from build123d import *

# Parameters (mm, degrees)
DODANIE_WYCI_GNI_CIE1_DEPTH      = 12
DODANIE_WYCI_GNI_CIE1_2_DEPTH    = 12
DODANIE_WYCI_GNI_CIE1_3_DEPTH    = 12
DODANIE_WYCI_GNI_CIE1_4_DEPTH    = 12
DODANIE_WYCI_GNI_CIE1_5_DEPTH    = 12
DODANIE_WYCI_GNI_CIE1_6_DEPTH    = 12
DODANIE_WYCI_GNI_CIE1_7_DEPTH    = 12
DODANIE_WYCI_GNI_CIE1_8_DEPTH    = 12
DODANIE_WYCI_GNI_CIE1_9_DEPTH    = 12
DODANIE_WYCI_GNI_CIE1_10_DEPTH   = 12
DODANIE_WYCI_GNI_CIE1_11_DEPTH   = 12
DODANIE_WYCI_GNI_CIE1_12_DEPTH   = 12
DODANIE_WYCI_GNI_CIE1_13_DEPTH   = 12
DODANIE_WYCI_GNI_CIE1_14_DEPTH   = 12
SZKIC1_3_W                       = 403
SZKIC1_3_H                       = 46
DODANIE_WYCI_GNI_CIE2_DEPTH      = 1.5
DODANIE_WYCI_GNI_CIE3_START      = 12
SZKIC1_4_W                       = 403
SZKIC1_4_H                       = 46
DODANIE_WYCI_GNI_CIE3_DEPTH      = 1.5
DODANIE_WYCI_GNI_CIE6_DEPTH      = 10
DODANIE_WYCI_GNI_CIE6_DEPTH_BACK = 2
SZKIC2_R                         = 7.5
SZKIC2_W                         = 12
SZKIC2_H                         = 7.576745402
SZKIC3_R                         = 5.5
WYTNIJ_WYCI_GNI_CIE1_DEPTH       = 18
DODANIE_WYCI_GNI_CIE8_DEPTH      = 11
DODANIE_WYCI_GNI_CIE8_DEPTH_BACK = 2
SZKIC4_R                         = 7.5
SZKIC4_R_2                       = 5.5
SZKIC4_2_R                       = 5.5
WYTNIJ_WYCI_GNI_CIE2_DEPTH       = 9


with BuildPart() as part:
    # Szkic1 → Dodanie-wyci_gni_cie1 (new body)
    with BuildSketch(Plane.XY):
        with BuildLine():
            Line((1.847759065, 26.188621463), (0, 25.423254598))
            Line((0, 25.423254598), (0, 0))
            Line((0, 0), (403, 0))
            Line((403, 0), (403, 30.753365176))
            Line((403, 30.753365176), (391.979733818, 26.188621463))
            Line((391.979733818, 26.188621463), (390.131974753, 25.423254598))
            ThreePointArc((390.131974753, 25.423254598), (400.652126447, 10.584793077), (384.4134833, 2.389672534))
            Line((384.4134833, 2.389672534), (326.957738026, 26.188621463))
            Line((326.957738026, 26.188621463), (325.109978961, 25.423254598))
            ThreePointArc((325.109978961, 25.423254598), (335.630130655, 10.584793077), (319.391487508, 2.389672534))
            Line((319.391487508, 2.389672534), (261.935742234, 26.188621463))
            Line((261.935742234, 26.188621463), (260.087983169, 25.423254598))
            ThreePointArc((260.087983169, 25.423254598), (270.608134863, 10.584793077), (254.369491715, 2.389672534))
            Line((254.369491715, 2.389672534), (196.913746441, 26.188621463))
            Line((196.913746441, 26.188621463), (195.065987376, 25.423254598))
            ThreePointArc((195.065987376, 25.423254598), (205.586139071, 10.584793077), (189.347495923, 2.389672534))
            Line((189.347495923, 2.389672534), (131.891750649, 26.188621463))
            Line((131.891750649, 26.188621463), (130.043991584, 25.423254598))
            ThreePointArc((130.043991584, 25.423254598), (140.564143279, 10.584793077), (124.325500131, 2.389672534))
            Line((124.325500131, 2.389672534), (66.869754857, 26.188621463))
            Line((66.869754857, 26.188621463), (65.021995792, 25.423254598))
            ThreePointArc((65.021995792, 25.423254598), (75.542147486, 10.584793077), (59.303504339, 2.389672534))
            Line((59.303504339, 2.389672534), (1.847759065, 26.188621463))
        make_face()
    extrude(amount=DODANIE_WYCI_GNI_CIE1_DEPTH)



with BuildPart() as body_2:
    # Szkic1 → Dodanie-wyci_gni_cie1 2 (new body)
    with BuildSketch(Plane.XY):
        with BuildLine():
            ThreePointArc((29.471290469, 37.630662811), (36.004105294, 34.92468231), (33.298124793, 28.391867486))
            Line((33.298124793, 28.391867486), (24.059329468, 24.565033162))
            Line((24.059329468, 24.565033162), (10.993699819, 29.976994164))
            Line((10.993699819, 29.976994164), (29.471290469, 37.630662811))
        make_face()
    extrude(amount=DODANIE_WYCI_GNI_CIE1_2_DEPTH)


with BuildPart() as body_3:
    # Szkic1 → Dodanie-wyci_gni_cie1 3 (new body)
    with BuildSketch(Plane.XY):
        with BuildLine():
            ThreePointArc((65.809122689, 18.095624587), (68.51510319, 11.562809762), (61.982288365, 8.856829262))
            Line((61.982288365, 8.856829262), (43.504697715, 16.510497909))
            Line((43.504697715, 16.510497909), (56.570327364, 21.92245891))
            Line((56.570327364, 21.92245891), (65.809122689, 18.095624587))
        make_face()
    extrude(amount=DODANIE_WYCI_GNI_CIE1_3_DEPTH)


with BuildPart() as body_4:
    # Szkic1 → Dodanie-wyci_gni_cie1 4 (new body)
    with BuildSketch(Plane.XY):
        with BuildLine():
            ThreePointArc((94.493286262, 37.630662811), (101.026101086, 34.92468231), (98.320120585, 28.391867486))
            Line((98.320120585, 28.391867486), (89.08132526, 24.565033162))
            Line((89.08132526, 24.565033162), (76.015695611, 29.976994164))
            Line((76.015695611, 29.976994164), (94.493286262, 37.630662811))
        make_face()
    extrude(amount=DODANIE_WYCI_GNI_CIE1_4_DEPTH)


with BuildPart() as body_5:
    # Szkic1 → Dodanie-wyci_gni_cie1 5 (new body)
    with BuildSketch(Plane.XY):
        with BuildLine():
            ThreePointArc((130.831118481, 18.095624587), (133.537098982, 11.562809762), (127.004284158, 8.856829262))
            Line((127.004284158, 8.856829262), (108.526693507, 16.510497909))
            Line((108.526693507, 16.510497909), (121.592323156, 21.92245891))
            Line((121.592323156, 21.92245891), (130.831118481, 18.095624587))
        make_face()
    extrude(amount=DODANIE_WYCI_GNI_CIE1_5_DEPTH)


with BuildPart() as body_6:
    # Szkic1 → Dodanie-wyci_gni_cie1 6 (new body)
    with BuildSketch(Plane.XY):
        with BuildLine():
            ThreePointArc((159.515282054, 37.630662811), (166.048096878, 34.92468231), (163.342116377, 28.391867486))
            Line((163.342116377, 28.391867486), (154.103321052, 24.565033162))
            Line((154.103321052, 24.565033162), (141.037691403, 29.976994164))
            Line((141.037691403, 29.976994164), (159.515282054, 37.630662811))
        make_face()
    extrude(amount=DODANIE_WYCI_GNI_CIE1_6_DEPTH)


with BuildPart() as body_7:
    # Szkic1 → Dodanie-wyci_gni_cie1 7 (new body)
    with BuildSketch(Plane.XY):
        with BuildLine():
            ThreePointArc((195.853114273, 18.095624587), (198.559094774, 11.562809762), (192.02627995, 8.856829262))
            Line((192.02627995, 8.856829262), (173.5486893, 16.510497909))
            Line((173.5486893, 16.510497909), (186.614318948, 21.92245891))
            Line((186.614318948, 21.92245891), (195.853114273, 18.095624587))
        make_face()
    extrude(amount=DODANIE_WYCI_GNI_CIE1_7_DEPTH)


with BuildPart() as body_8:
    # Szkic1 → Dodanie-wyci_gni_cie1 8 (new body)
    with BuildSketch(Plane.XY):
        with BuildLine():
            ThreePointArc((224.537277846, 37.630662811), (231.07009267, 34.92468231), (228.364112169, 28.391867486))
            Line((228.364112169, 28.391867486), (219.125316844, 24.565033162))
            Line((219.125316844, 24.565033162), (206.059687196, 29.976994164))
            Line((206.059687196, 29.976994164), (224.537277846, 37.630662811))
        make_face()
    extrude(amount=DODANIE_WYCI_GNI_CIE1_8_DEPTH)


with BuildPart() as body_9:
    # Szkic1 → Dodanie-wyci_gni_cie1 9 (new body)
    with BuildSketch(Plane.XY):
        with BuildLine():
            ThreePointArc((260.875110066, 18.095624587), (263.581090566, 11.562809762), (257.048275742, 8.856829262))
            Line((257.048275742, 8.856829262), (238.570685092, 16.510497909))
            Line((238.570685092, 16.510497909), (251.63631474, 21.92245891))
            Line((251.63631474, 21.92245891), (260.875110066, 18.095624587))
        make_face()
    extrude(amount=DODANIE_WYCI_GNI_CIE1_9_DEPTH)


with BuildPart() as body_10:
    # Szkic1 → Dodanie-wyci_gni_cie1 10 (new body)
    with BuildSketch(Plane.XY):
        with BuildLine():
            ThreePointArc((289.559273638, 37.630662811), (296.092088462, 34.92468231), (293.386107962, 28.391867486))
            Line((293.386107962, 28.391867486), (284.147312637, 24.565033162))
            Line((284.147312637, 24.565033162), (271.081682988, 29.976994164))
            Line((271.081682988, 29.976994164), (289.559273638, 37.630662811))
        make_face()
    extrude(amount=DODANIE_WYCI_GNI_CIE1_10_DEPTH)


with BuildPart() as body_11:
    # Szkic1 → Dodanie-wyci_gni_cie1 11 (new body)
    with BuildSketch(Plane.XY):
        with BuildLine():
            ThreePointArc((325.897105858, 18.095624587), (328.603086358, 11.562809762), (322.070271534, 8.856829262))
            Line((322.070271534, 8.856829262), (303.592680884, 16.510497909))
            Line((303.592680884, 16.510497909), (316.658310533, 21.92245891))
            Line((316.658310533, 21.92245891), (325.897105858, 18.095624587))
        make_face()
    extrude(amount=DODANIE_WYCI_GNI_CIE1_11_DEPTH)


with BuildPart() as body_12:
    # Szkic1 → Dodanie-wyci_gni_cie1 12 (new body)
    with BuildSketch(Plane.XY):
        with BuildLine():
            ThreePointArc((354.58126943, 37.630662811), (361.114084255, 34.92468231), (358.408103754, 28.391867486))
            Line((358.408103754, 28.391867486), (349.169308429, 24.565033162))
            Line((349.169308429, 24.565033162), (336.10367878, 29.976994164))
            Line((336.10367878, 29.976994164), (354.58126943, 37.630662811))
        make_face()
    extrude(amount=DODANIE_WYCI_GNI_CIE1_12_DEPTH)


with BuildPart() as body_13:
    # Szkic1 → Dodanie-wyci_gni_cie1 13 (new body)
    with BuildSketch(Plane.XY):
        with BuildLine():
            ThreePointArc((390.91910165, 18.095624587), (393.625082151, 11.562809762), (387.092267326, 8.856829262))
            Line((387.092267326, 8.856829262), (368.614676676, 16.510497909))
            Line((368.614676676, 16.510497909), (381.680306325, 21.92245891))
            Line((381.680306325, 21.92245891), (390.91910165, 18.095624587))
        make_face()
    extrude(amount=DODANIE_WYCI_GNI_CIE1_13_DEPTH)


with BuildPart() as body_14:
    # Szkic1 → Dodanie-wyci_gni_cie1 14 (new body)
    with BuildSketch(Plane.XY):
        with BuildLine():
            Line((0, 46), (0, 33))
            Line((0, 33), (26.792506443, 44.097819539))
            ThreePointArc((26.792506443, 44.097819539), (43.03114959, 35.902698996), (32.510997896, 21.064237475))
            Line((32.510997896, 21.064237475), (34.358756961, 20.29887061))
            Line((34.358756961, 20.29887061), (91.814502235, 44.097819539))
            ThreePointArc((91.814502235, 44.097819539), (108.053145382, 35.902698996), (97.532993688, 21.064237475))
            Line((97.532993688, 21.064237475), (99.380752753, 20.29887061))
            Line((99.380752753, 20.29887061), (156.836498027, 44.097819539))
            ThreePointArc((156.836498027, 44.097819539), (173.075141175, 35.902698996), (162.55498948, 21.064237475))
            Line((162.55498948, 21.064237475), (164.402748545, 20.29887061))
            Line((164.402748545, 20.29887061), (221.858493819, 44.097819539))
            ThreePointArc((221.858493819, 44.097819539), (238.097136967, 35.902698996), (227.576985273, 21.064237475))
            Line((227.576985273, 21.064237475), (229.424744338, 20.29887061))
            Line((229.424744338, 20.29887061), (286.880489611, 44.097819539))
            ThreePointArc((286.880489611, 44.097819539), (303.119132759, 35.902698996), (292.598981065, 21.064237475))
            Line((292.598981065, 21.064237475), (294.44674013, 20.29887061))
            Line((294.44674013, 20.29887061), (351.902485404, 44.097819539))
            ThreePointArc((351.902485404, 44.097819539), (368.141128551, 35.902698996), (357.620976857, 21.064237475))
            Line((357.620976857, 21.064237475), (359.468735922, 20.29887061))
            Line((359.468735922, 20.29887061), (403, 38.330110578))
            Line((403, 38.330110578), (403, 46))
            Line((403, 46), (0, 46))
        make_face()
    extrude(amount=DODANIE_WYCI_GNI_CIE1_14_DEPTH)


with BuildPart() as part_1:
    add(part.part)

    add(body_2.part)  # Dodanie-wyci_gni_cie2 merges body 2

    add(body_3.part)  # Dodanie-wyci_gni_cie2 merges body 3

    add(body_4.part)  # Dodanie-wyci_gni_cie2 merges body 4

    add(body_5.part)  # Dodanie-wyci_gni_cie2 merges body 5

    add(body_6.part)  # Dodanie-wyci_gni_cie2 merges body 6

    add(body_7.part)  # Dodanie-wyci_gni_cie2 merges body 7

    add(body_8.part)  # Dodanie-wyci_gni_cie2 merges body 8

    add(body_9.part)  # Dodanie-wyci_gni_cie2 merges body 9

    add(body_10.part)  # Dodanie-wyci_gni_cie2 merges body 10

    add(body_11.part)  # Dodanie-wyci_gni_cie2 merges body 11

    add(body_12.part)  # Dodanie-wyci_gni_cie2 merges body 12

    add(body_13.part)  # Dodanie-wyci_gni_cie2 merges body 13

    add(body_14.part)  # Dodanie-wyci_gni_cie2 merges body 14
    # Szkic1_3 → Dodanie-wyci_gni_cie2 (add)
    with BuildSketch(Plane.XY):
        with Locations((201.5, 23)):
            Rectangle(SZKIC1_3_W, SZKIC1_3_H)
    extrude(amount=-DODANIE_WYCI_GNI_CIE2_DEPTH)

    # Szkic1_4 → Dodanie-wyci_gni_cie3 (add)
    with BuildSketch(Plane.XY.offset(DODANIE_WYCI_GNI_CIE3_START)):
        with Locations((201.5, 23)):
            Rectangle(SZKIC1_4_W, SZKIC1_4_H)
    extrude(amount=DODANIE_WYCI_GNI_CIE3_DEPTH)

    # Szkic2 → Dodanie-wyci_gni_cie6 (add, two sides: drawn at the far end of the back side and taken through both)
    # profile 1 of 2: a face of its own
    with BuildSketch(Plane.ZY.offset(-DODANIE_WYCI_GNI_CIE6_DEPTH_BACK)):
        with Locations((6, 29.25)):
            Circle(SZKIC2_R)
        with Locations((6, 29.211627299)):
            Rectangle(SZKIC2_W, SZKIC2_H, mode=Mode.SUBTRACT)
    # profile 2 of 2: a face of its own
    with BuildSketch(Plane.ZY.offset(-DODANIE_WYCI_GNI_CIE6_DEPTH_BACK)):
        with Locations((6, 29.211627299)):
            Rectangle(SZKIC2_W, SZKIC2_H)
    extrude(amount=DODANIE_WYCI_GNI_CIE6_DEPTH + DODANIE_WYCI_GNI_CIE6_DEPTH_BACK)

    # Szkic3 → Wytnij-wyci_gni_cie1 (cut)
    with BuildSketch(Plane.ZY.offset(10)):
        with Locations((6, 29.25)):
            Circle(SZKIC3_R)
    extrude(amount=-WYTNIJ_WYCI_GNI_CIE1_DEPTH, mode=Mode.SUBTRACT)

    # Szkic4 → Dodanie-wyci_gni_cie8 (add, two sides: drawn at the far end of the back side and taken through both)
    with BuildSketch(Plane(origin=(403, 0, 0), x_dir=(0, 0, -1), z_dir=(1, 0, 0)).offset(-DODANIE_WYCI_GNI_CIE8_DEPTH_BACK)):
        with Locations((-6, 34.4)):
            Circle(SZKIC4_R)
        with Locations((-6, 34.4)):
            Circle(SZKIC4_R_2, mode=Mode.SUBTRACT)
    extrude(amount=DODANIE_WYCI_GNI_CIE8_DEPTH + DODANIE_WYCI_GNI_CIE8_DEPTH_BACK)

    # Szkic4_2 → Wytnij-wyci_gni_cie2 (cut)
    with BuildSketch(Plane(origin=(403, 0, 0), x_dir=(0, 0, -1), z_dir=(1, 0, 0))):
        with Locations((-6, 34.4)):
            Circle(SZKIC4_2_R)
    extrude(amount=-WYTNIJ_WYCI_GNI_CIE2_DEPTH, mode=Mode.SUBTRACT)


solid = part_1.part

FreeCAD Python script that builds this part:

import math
import FreeCAD as App
import Part
import Sketcher

V = App.Vector
Q = App.Units.Quantity


def add_polygon(sketch, points):
    """Adds a closed chain of lines whose ends are joined by coincident constraints."""
    first, n = sketch.GeometryCount, len(points)
    for a, b in zip(points, points[1:] + points[:1]):
        sketch.addGeometry(Part.LineSegment(App.Vector(*a, 0), App.Vector(*b, 0)), False)
    for i in range(n):
        sketch.addConstraint(Sketcher.Constraint("Coincident", first + i, 2, first + (i + 1) % n, 1))

doc = App.newDocument("Part")
body = doc.addObject("PartDesign::Body", "Body")

# Sketch on XY plane
sketch1 = doc.addObject("Sketcher::SketchObject", "Sketch")
body.addObject(sketch1)
sketch1.AttachmentSupport = (doc.XY_Plane, [""])
sketch1.MapMode = "FlatFace"
sketch1.addGeometry(Part.LineSegment(V(1.8, 26.2, 0), V(0, 25.4, 0)), False)
sketch1.addGeometry(Part.LineSegment(V(0, 25.4, 0), V(0, 0, 0)), False)
sketch1.addGeometry(Part.LineSegment(V(0, 0, 0), V(403, 0, 0)), False)
sketch1.addGeometry(Part.LineSegment(V(403, 0, 0), V(403, 30.8, 0)), False)
sketch1.addGeometry(Part.LineSegment(V(403, 30.8, 0), V(392, 26.2, 0)), False)
sketch1.addGeometry(Part.LineSegment(V(392, 26.2, 0), V(390.1, 25.4, 0)), False)
sketch1.addGeometry(Part.ArcOfCircle(Part.Circle(V(389, 13.5, 0), V(0, 0, 1), 12), math.radians(-112), math.radians(85)), False)
sketch1.addGeometry(Part.LineSegment(V(384.4, 2.4, 0), V(327, 26.2, 0)), False)
sketch1.addGeometry(Part.LineSegment(V(327, 26.2, 0), V(325.1, 25.4, 0)), False)
sketch1.addGeometry(Part.ArcOfCircle(Part.Circle(V(324, 13.5, 0), V(0, 0, 1), 12), math.radians(-112), math.radians(85)), False)
sketch1.addGeometry(Part.LineSegment(V(319.4, 2.4, 0), V(261.9, 26.2, 0)), False)
sketch1.addGeometry(Part.LineSegment(V(261.9, 26.2, 0), V(260.1, 25.4, 0)), False)
sketch1.addGeometry(Part.ArcOfCircle(Part.Circle(V(259, 13.5, 0), V(0, 0, 1), 12), math.radians(-113), math.radians(85)), False)
sketch1.addGeometry(Part.LineSegment(V(254.4, 2.4, 0), V(196.9, 26.2, 0)), False)
sketch1.addGeometry(Part.LineSegment(V(196.9, 26.2, 0), V(195.1, 25.4, 0)), False)
sketch1.addGeometry(Part.ArcOfCircle(Part.Circle(V(193.9, 13.5, 0), V(0, 0, 1), 12), math.radians(-113), math.radians(85)), False)
sketch1.addGeometry(Part.LineSegment(V(189.3, 2.4, 0), V(131.9, 26.2, 0)), False)
sketch1.addGeometry(Part.LineSegment(V(131.9, 26.2, 0), V(130, 25.4, 0)), False)
sketch1.addGeometry(Part.ArcOfCircle(Part.Circle(V(128.9, 13.5, 0), V(0, 0, 1), 12), math.radians(-113), math.radians(85)), False)
sketch1.addGeometry(Part.LineSegment(V(124.3, 2.4, 0), V(66.9, 26.2, 0)), False)
sketch1.addGeometry(Part.LineSegment(V(66.9, 26.2, 0), V(65, 25.4, 0)), False)
sketch1.addGeometry(Part.ArcOfCircle(Part.Circle(V(63.9, 13.5, 0), V(0, 0, 1), 12), math.radians(-112), math.radians(85)), False)
sketch1.addGeometry(Part.LineSegment(V(59.3, 2.4, 0), V(1.8, 26.2, 0)), False)
sketch1.addConstraint(Sketcher.Constraint("Coincident", 0, 2, 1, 1))
sketch1.addConstraint(Sketcher.Constraint("Coincident", 1, 2, 2, 1))
sketch1.addConstraint(Sketcher.Constraint("Coincident", 2, 2, 3, 1))
sketch1.addConstraint(Sketcher.Constraint("Coincident", 3, 2, 4, 1))
sketch1.addConstraint(Sketcher.Constraint("Coincident", 4, 2, 5, 1))
sketch1.addConstraint(Sketcher.Constraint("Coincident", 5, 2, 6, 2))
sketch1.addConstraint(Sketcher.Constraint("Tangent", 6, 1, 7, 1))
sketch1.addConstraint(Sketcher.Constraint("Coincident", 7, 2, 8, 1))
sketch1.addConstraint(Sketcher.Constraint("Coincident", 8, 2, 9, 2))
sketch1.addConstraint(Sketcher.Constraint("Tangent", 9, 1, 10, 1))
sketch1.addConstraint(Sketcher.Constraint("Coincident", 10, 2, 11, 1))
sketch1.addConstraint(Sketcher.Constraint("Coincident", 11, 2, 12, 2))
sketch1.addConstraint(Sketcher.Constraint("Tangent", 12, 1, 13, 1))
sketch1.addConstraint(Sketcher.Constraint("Coincident", 13, 2, 14, 1))
sketch1.addConstraint(Sketcher.Constraint("Coincident", 14, 2, 15, 2))
sketch1.addConstraint(Sketcher.Constraint("Tangent", 15, 1, 16, 1))
sketch1.addConstraint(Sketcher.Constraint("Coincident", 16, 2, 17, 1))
sketch1.addConstraint(Sketcher.Constraint("Coincident", 17, 2, 18, 2))
sketch1.addConstraint(Sketcher.Constraint("Tangent", 18, 1, 19, 1))
sketch1.addConstraint(Sketcher.Constraint("Coincident", 19, 2, 20, 1))
sketch1.addConstraint(Sketcher.Constraint("Coincident", 20, 2, 21, 2))
sketch1.addConstraint(Sketcher.Constraint("Tangent", 21, 1, 22, 1))
sketch1.addConstraint(Sketcher.Constraint("Coincident", 22, 2, 0, 1))
sketch1.addConstraint(Sketcher.Constraint("Vertical", 1))
sketch1.addConstraint(Sketcher.Constraint("Horizontal", 2))
sketch1.addConstraint(Sketcher.Constraint("Vertical", 3))
sketch1.addConstraint(Sketcher.Constraint("Coincident", 1, 2, -1, 1))
sketch1.addConstraint(Sketcher.Constraint("Equal", 6, 9))
sketch1.addConstraint(Sketcher.Constraint("Equal", 9, 12))
sketch1.addConstraint(Sketcher.Constraint("Equal", 12, 15))
sketch1.addConstraint(Sketcher.Constraint("Equal", 15, 18))
sketch1.addConstraint(Sketcher.Constraint("Equal", 18, 21))
sketch1.addConstraint(Sketcher.Constraint("Parallel", 0, 4))
sketch1.addConstraint(Sketcher.Constraint("Parallel", 4, 5))
sketch1.addConstraint(Sketcher.Constraint("Parallel", 5, 8))
sketch1.addConstraint(Sketcher.Constraint("Parallel", 7, 10))
sketch1.addConstraint(Sketcher.Constraint("Parallel", 8, 11))
sketch1.addConstraint(Sketcher.Constraint("Parallel", 10, 13))
sketch1.addConstraint(Sketcher.Constraint("Parallel", 11, 14))
sketch1.addConstraint(Sketcher.Constraint("Parallel", 13, 16))
sketch1.addConstraint(Sketcher.Constraint("Parallel", 14, 17))
sketch1.addConstraint(Sketcher.Constraint("Parallel", 16, 19))
sketch1.addConstraint(Sketcher.Constraint("Parallel", 17, 20))
sketch1.addConstraint(Sketcher.Constraint("Parallel", 19, 22))
sketch1.addConstraint(Sketcher.Constraint("Horizontal", 6, 3, 9, 3))
sketch1.addConstraint(Sketcher.Constraint("Horizontal", 9, 3, 12, 3))
sketch1.addConstraint(Sketcher.Constraint("Horizontal", 12, 3, 15, 3))
sketch1.addConstraint(Sketcher.Constraint("Horizontal", 15, 3, 18, 3))
sketch1.addConstraint(Sketcher.Constraint("Horizontal", 18, 3, 21, 3))
sketch1.addConstraint(Sketcher.Constraint("Horizontal", 0, 2, 5, 2))
sketch1.addConstraint(Sketcher.Constraint("Horizontal", 4, 2, 7, 2))
sketch1.addConstraint(Sketcher.Constraint("Horizontal", 5, 2, 8, 2))
sketch1.addConstraint(Sketcher.Constraint("Horizontal", 7, 2, 10, 2))
sketch1.addConstraint(Sketcher.Constraint("Horizontal", 8, 2, 11, 2))
sketch1.addConstraint(Sketcher.Constraint("Horizontal", 10, 2, 13, 2))
sketch1.addConstraint(Sketcher.Constraint("Horizontal", 11, 2, 14, 2))
sketch1.addConstraint(Sketcher.Constraint("Horizontal", 13, 2, 16, 2))
sketch1.addConstraint(Sketcher.Constraint("Horizontal", 14, 2, 17, 2))
sketch1.addConstraint(Sketcher.Constraint("Horizontal", 16, 2, 19, 2))
sketch1.addConstraint(Sketcher.Constraint("Horizontal", 17, 2, 20, 2))
sketch1.addConstraint(Sketcher.Constraint("Horizontal", 19, 2, 22, 2))
sketch1.addConstraint(Sketcher.Constraint("Radius", 6, 12.0))
sketch1.addConstraint(Sketcher.Constraint("DistanceX", 2, 1, 2, 2, 403.0))
sketch1.addConstraint(Sketcher.Constraint("Distance", 0, 2.0))
sketch1.addConstraint(Sketcher.Constraint("Angle", 0, Q("-157.5 deg")))
sketch1.addConstraint(Sketcher.Constraint("Angle", 7, Q("157.5 deg")))
sketch1.addConstraint(Sketcher.Constraint("DistanceX", -1, 1, 18, 3, 128.917701))
sketch1.addConstraint(Sketcher.Constraint("DistanceY", 1, 2, 1, 1, 25.423255))
pad1 = doc.addObject("PartDesign::Pad", "Pad")
body.addObject(pad1)
pad1.Profile = sketch1
pad1.Length = 12
body2 = doc.addObject("PartDesign::Body", "Body001")

# Sketch on XY plane
sketch2 = doc.addObject("Sketcher::SketchObject", "Sketch001")
body2.addObject(sketch2)
sketch2.AttachmentSupport = (doc.getObject("XY_Plane001"), [""])
sketch2.MapMode = "FlatFace"
sketch2.addGeometry(Part.ArcOfCircle(Part.Circle(V(31, 33, 0), V(0, 0, 1), 5), math.radians(-68), math.radians(113)), False)
sketch2.addGeometry(Part.LineSegment(V(29, 38, 0), V(11, 30, 0)), False)
sketch2.addGeometry(Part.LineSegment(V(11, 30, 0), V(24, 25, 0)), False)
sketch2.addGeometry(Part.LineSegment(V(24, 25, 0), V(33, 28, 0)), False)
sketch2.addConstraint(Sketcher.Constraint("Tangent", 0, 2, 1, 1))
sketch2.addConstraint(Sketcher.Constraint("Coincident", 1, 2, 2, 1))
sketch2.addConstraint(Sketcher.Constraint("Coincident", 2, 2, 3, 1))
sketch2.addConstraint(Sketcher.Constraint("Tangent", 3, 2, 0, 1))
sketch2.addConstraint(Sketcher.Constraint("Parallel", 1, 3))
sketch2.addConstraint(Sketcher.Constraint("Radius", 0, 5.0))
sketch2.addConstraint(Sketcher.Constraint("Distance", 1, 20.0))
sketch2.addConstraint(Sketcher.Constraint("Distance", 3, 10.0))
sketch2.addConstraint(Sketcher.Constraint("Angle", 1, Q("-157.5 deg")))
sketch2.addConstraint(Sketcher.Constraint("DistanceX", -1, 1, 1, 2, 10.9937))
sketch2.addConstraint(Sketcher.Constraint("DistanceY", -1, 1, 0, 3, 33.011265))
pad2 = doc.addObject("PartDesign::Pad", "Pad001")
body2.addObject(pad2)
pad2.Profile = sketch2
pad2.Length = 12
body3 = doc.addObject("PartDesign::Body", "Body002")

# Sketch on XY plane
sketch3 = doc.addObject("Sketcher::SketchObject", "Sketch002")
body3.addObject(sketch3)
sketch3.AttachmentSupport = (doc.getObject("XY_Plane002"), [""])
sketch3.MapMode = "FlatFace"
sketch3.addGeometry(Part.ArcOfCircle(Part.Circle(V(64, 13, 0), V(0, 0, 1), 5), math.radians(-113), math.radians(68)), False)
sketch3.addGeometry(Part.LineSegment(V(66, 18, 0), V(57, 22, 0)), False)
sketch3.addGeometry(Part.LineSegment(V(57, 22, 0), V(44, 17, 0)), False)
sketch3.addGeometry(Part.LineSegment(V(44, 17, 0), V(62, 9, 0)), False)
sketch3.addConstraint(Sketcher.Constraint("Tangent", 0, 2, 1, 1))
sketch3.addConstraint(Sketcher.Constraint("Coincident", 1, 2, 2, 1))
sketch3.addConstraint(Sketcher.Constraint("Coincident", 2, 2, 3, 1))
sketch3.addConstraint(Sketcher.Constraint("Tangent", 3, 2, 0, 1))
sketch3.addConstraint(Sketcher.Constraint("Parallel", 1, 3))
sketch3.addConstraint(Sketcher.Constraint("Radius", 0, 5.0))
sketch3.addConstraint(Sketcher.Constraint("Distance", 1, 10.0))
sketch3.addConstraint(Sketcher.Constraint("Distance", 3, 20.0))
sketch3.addConstraint(Sketcher.Constraint("Angle", 1, Q("157.5 deg")))
sketch3.addConstraint(Sketcher.Constraint("DistanceY", -1, 1, 1, 2, 21.922459))
sketch3.addConstraint(Sketcher.Constraint("DistanceX", -1, 1, 3, 2, 61.982288))
pad3 = doc.addObject("PartDesign::Pad", "Pad002")
body3.addObject(pad3)
pad3.Profile = sketch3
pad3.Length = 12
body4 = doc.addObject("PartDesign::Body", "Body003")

# Sketch on XY plane
sketch4 = doc.addObject("Sketcher::SketchObject", "Sketch003")
body4.addObject(sketch4)
sketch4.AttachmentSupport = (doc.getObject("XY_Plane003"), [""])
sketch4.MapMode = "FlatFace"
sketch4.addGeometry(Part.ArcOfCircle(Part.Circle(V(96, 33, 0), V(0, 0, 1), 5), math.radians(-68), math.radians(113)), False)
sketch4.addGeometry(Part.LineSegment(V(94, 38, 0), V(76, 30, 0)), False)
sketch4.addGeometry(Part.LineSegment(V(76, 30, 0), V(89, 25, 0)), False)
sketch4.addGeometry(Part.LineSegment(V(89, 25, 0), V(98, 28, 0)), False)
sketch4.addConstraint(Sketcher.Constraint("Tangent", 0, 2, 1, 1))
sketch4.addConstraint(Sketcher.Constraint("Coincident", 1, 2, 2, 1))
sketch4.addConstraint(Sketcher.Constraint("Coincident", 2, 2, 3, 1))
sketch4.addConstraint(Sketcher.Constraint("Tangent", 3, 2, 0, 1))
sketch4.addConstraint(Sketcher.Constraint("Parallel", 1, 3))
sketch4.addConstraint(Sketcher.Constraint("Radius", 0, 5.0))
sketch4.addConstraint(Sketcher.Constraint("Distance", 1, 20.0))
sketch4.addConstraint(Sketcher.Constraint("Distance", 3, 10.0))
sketch4.addConstraint(Sketcher.Constraint("Angle", 1, Q("-157.5 deg")))
sketch4.addConstraint(Sketcher.Constraint("DistanceX", -1, 1, 3, 2, 98.320121))
sketch4.addConstraint(Sketcher.Constraint("DistanceY", -1, 1, 0, 3, 33.011265))
pad4 = doc.addObject("PartDesign::Pad", "Pad003")
body4.addObject(pad4)
pad4.Profile = sketch4
pad4.Length = 12
body5 = doc.addObject("PartDesign::Body", "Body004")

# Sketch on XY plane
sketch5 = doc.addObject("Sketcher::SketchObject", "Sketch004")
body5.addObject(sketch5)
sketch5.AttachmentSupport = (doc.getObject("XY_Plane004"), [""])
sketch5.MapMode = "FlatFace"
sketch5.addGeometry(Part.ArcOfCircle(Part.Circle(V(129, 13, 0), V(0, 0, 1), 5), math.radians(-113), math.radians(68)), False)
sketch5.addGeometry(Part.LineSegment(V(131, 18, 0), V(122, 22, 0)), False)
sketch5.addGeometry(Part.LineSegment(V(122, 22, 0), V(109, 17, 0)), False)
sketch5.addGeometry(Part.LineSegment(V(109, 17, 0), V(127, 9, 0)), False)
sketch5.addConstraint(Sketcher.Constraint("Tangent", 0, 2, 1, 1))
sketch5.addConstraint(Sketcher.Constraint("Coincident", 1, 2, 2, 1))
sketch5.addConstraint(Sketcher.Constraint("Coincident", 2, 2, 3, 1))
sketch5.addConstraint(Sketcher.Constraint("Tangent", 3, 2, 0, 1))
sketch5.addConstraint(Sketcher.Constraint("Parallel", 1, 3))
sketch5.addConstraint(Sketcher.Constraint("Radius", 0, 5.0))
sketch5.addConstraint(Sketcher.Constraint("Distance", 1, 10.0))
sketch5.addConstraint(Sketcher.Constraint("Distance", 3, 20.0))
sketch5.addConstraint(Sketcher.Constraint("Angle", 1, Q("157.5 deg")))
sketch5.addConstraint(Sketcher.Constraint("DistanceX", -1, 1, 0, 3, 128.917701))
sketch5.addConstraint(Sketcher.Constraint("DistanceY", -1, 1, 1, 2, 21.922459))
pad5 = doc.addObject("PartDesign::Pad", "Pad004")
body5.addObject(pad5)
pad5.Profile = sketch5
pad5.Length = 12
body6 = doc.addObject("PartDesign::Body", "Body005")

# Sketch on XY plane
sketch6 = doc.addObject("Sketcher::SketchObject", "Sketch005")
body6.addObject(sketch6)
sketch6.AttachmentSupport = (doc.getObject("XY_Plane005"), [""])
sketch6.MapMode = "FlatFace"
sketch6.addGeometry(Part.ArcOfCircle(Part.Circle(V(161, 33, 0), V(0, 0, 1), 5), math.radians(-68), math.radians(112)), False)
sketch6.addGeometry(Part.LineSegment(V(160, 38, 0), V(141, 30, 0)), False)
sketch6.addGeometry(Part.LineSegment(V(141, 30, 0), V(154, 25, 0)), False)
sketch6.addGeometry(Part.LineSegment(V(154, 25, 0), V(163, 28, 0)), False)
sketch6.addConstraint(Sketcher.Constraint("Tangent", 0, 2, 1, 1))
sketch6.addConstraint(Sketcher.Constraint("Coincident", 1, 2, 2, 1))
sketch6.addConstraint(Sketcher.Constraint("Coincident", 2, 2, 3, 1))
sketch6.addConstraint(Sketcher.Constraint("Tangent", 3, 2, 0, 1))
sketch6.addConstraint(Sketcher.Constraint("Parallel", 1, 3))
sketch6.addConstraint(Sketcher.Constraint("Radius", 0, 5.0))
sketch6.addConstraint(Sketcher.Constraint("Distance", 1, 20.0))
sketch6.addConstraint(Sketcher.Constraint("Distance", 3, 10.0))
sketch6.addConstraint(Sketcher.Constraint("Angle", 1, Q("-157.5 deg")))
sketch6.addConstraint(Sketcher.Constraint("DistanceX", -1, 1, 0, 3, 161.428699))
sketch6.addConstraint(Sketcher.Constraint("DistanceY", -1, 1, 0, 3, 33.011265))
pad6 = doc.addObject("PartDesign::Pad", "Pad005")
body6.addObject(pad6)
pad6.Profile = sketch6
pad6.Length = 12
body7 = doc.addObject("PartDesign::Body", "Body006")

# Sketch on XY plane
sketch7 = doc.addObject("Sketcher::SketchObject", "Sketch006")
body7.addObject(sketch7)
sketch7.AttachmentSupport = (doc.getObject("XY_Plane006"), [""])
sketch7.MapMode = "FlatFace"
sketch7.addGeometry(Part.ArcOfCircle(Part.Circle(V(194, 13, 0), V(0, 0, 1), 5), math.radians(-113), math.radians(68)), False)
sketch7.addGeometry(Part.LineSegment(V(196, 18, 0), V(187, 22, 0)), False)
sketch7.addGeometry(Part.LineSegment(V(187, 22, 0), V(174, 17, 0)), False)
sketch7.addGeometry(Part.LineSegment(V(174, 17, 0), V(192, 9, 0)), False)
sketch7.addConstraint(Sketcher.Constraint("Tangent", 0, 2, 1, 1))
sketch7.addConstraint(Sketcher.Constraint("Coincident", 1, 2, 2, 1))
sketch7.addConstraint(Sketcher.Constraint("Coincident", 2, 2, 3, 1))
sketch7.addConstraint(Sketcher.Constraint("Tangent", 3, 2, 0, 1))
sketch7.addConstraint(Sketcher.Constraint("Parallel", 1, 3))
sketch7.addConstraint(Sketcher.Constraint("Radius", 0, 5.0))
sketch7.addConstraint(Sketcher.Constraint("Distance", 1, 10.0))
sketch7.addConstraint(Sketcher.Constraint("Distance", 3, 20.0))
sketch7.addConstraint(Sketcher.Constraint("Angle", 1, Q("157.5 deg")))
sketch7.addConstraint(Sketcher.Constraint("DistanceX", -1, 1, 1, 2, 186.614319))
sketch7.addConstraint(Sketcher.Constraint("DistanceY", -1, 1, 1, 2, 21.922459))
pad7 = doc.addObject("PartDesign::Pad", "Pad006")
body7.addObject(pad7)
pad7.Profile = sketch7
pad7.Length = 12
body8 = doc.addObject("PartDesign::Body", "Body007")

# Sketch on XY plane
sketch8 = doc.addObject("Sketcher::SketchObject", "Sketch007")
body8.addObject(sketch8)
sketch8.AttachmentSupport = (doc.getObject("XY_Plane007"), [""])
sketch8.MapMode = "FlatFace"
sketch8.addGeometry(Part.ArcOfCircle(Part.Circle(V(226, 33, 0), V(0, 0, 1), 5), math.radians(-68), math.radians(113)), False)
sketch8.addGeometry(Part.LineSegment(V(225, 38, 0), V(206, 30, 0)), False)
sketch8.addGeometry(Part.LineSegment(V(206, 30, 0), V(219, 25, 0)), False)
sketch8.addGeometry(Part.LineSegment(V(219, 25, 0), V(228, 28, 0)), False)
sketch8.addConstraint(Sketcher.Constraint("Tangent", 0, 2, 1, 1))
sketch8.addConstraint(Sketcher.Constraint("Coincident", 1, 2, 2, 1))
sketch8.addConstraint(Sketcher.Constraint("Coincident", 2, 2, 3, 1))
sketch8.addConstraint(Sketcher.Constraint("Tangent", 3, 2, 0, 1))
sketch8.addConstraint(Sketcher.Constraint("Parallel", 1, 3))
sketch8.addConstraint(Sketcher.Constraint("Radius", 0, 5.0))
sketch8.addConstraint(Sketcher.Constraint("Distance", 1, 20.0))
sketch8.addConstraint(Sketcher.Constraint("Distance", 3, 10.0))
sketch8.addConstraint(Sketcher.Constraint("Angle", 1, Q("-157.5 deg")))
sketch8.addConstraint(Sketcher.Constraint("DistanceX", -1, 1, 0, 3, 226.450695))
sketch8.addConstraint(Sketcher.Constraint("DistanceY", -1, 1, 0, 3, 33.011265))
pad8 = doc.addObject("PartDesign::Pad", "Pad007")
body8.addObject(pad8)
pad8.Profile = sketch8
pad8.Length = 12
body9 = doc.addObject("PartDesign::Body", "Body008")

# Sketch on XY plane
sketch9 = doc.addObject("Sketcher::SketchObject", "Sketch008")
body9.addObject(sketch9)
sketch9.AttachmentSupport = (doc.getObject("XY_Plane008"), [""])
sketch9.MapMode = "FlatFace"
sketch9.addGeometry(Part.ArcOfCircle(Part.Circle(V(259, 13, 0), V(0, 0, 1), 5), math.radians(-112), math.radians(67)), False)
sketch9.addGeometry(Part.LineSegment(V(261, 18, 0), V(252, 22, 0)), False)
sketch9.addGeometry(Part.LineSegment(V(252, 22, 0), V(239, 17, 0)), False)
sketch9.addGeometry(Part.LineSegment(V(239, 17, 0), V(257, 9, 0)), False)
sketch9.addConstraint(Sketcher.Constraint("Tangent", 0, 2, 1, 1))
sketch9.addConstraint(Sketcher.Constraint("Coincident", 1, 2, 2, 1))
sketch9.addConstraint(Sketcher.Constraint("Coincident", 2, 2, 3, 1))
sketch9.addConstraint(Sketcher.Constraint("Tangent", 3, 2, 0, 1))
sketch9.addConstraint(Sketcher.Constraint("Parallel", 1, 3))
sketch9.addConstraint(Sketcher.Constraint("Radius", 0, 5.0))
sketch9.addConstraint(Sketcher.Constraint("Distance", 1, 10.0))
sketch9.addConstraint(Sketcher.Constraint("Distance", 3, 20.0))
sketch9.addConstraint(Sketcher.Constraint("Angle", 1, Q("157.5 deg")))
sketch9.addConstraint(Sketcher.Constraint("DistanceX", -1, 1, 0, 2, 260.87511))
sketch9.addConstraint(Sketcher.Constraint("DistanceY", -1, 1, 1, 2, 21.922459))
pad9 = doc.addObject("PartDesign::Pad", "Pad008")
body9.addObject(pad9)
pad9.Profile = sketch9
pad9.Length = 12
body10 = doc.addObject("PartDesign::Body", "Body009")

# Sketch on XY plane
sketch10 = doc.addObject("Sketcher::SketchObject", "Sketch009")
body10.addObject(sketch10)
sketch10.AttachmentSupport = (doc.getObject("XY_Plane009"), [""])
sketch10.MapMode = "FlatFace"
sketch10.addGeometry(Part.ArcOfCircle(Part.Circle(V(291, 33, 0), V(0, 0, 1), 5), math.radians(-67), math.radians(112)), False)
sketch10.addGeometry(Part.LineSegment(V(290, 38, 0), V(271, 30, 0)), False)
sketch10.addGeometry(Part.LineSegment(V(271, 30, 0), V(284, 25, 0)), False)
sketch10.addGeometry(Part.LineSegment(V(284, 25, 0), V(293, 28, 0)), False)
sketch10.addConstraint(Sketcher.Constraint("Tangent", 0, 2, 1, 1))
sketch10.addConstraint(Sketcher.Constraint("Coincident", 1, 2, 2, 1))
sketch10.addConstraint(Sketcher.Constraint("Coincident", 2, 2, 3, 1))
sketch10.addConstraint(Sketcher.Constraint("Tangent", 3, 2, 0, 1))
sketch10.addConstraint(Sketcher.Constraint("Parallel", 1, 3))
sketch10.addConstraint(Sketcher.Constraint("Radius", 0, 5.0))
sketch10.addConstraint(Sketcher.Constraint("Distance", 1, 20.0))
sketch10.addConstraint(Sketcher.Constraint("Distance", 3, 10.0))
sketch10.addConstraint(Sketcher.Constraint("Angle", 1, Q("-157.5 deg")))
sketch10.addConstraint(Sketcher.Constraint("DistanceX", -1, 1, 0, 3, 291.472691))
sketch10.addConstraint(Sketcher.Constraint("DistanceY", -1, 1, 0, 3, 33.011265))
pad10 = doc.addObject("PartDesign::Pad", "Pad009")
body10.addObject(pad10)
pad10.Profile = sketch10
pad10.Length = 12
body11 = doc.addObject("PartDesign::Body", "Body010")

# Sketch on XY plane
sketch11 = doc.addObject("Sketcher::SketchObject", "Sketch010")
body11.addObject(sketch11)
sketch11.AttachmentSupport = (doc.getObject("XY_Plane010"), [""])
sketch11.MapMode = "FlatFace"
sketch11.addGeometry(Part.ArcOfCircle(Part.Circle(V(324, 13, 0), V(0, 0, 1), 5), math.radians(-112), math.radians(67)), False)
sketch11.addGeometry(Part.LineSegment(V(326, 18, 0), V(317, 22, 0)), False)
sketch11.addGeometry(Part.LineSegment(V(317, 22, 0), V(304, 17, 0)), False)
sketch11.addGeometry(Part.LineSegment(V(304, 17, 0), V(322, 9, 0)), False)
sketch11.addConstraint(Sketcher.Constraint("Tangent", 0, 2, 1, 1))
sketch11.addConstraint(Sketcher.Constraint("Coincident", 1, 2, 2, 1))
sketch11.addConstraint(Sketcher.Constraint("Coincident", 2, 2, 3, 1))
sketch11.addConstraint(Sketcher.Constraint("Tangent", 3, 2, 0, 1))
sketch11.addConstraint(Sketcher.Constraint("Parallel", 1, 3))
sketch11.addConstraint(Sketcher.Constraint("Radius", 0, 5.0))
sketch11.addConstraint(Sketcher.Constraint("Distance", 1, 10.0))
sketch11.addConstraint(Sketcher.Constraint("Distance", 3, 20.0))
sketch11.addConstraint(Sketcher.Constraint("Angle", 1, Q("157.5 deg")))
sketch11.addConstraint(Sketcher.Constraint("DistanceX", -1, 1, 0, 3, 323.983689))
sketch11.addConstraint(Sketcher.Constraint("DistanceY", -1, 1, 1, 2, 21.922459))
pad11 = doc.addObject("PartDesign::Pad", "Pad010")
body11.addObject(pad11)
pad11.Profile = sketch11
pad11.Length = 12
body12 = doc.addObject("PartDesign::Body", "Body011")

# Sketch on XY plane
sketch12 = doc.addObject("Sketcher::SketchObject", "Sketch011")
body12.addObject(sketch12)
sketch12.AttachmentSupport = (doc.getObject("XY_Plane011"), [""])
sketch12.MapMode = "FlatFace"
sketch12.addGeometry(Part.ArcOfCircle(Part.Circle(V(356, 33, 0), V(0, 0, 1), 5), math.radians(-68), math.radians(113)), False)
sketch12.addGeometry(Part.LineSegment(V(355, 38, 0), V(336, 30, 0)), False)
sketch12.addGeometry(Part.LineSegment(V(336, 30, 0), V(349, 25, 0)), False)
sketch12.addGeometry(Part.LineSegment(V(349, 25, 0), V(358, 28, 0)), False)
sketch12.addConstraint(Sketcher.Constraint("Tangent", 0, 2, 1, 1))
sketch12.addConstraint(Sketcher.Constraint("Coincident", 1, 2, 2, 1))
sketch12.addConstraint(Sketcher.Constraint("Coincident", 2, 2, 3, 1))
sketch12.addConstraint(Sketcher.Constraint("Tangent", 3, 2, 0, 1))
sketch12.addConstraint(Sketcher.Constraint("Parallel", 1, 3))
sketch12.addConstraint(Sketcher.Constraint("Radius", 0, 5.0))
sketch12.addConstraint(Sketcher.Constraint("Distance", 1, 20.0))
sketch12.addConstraint(Sketcher.Constraint("Distance", 3, 10.0))
sketch12.addConstraint(Sketcher.Constraint("Angle", 1, Q("-157.5 deg")))
sketch12.addConstraint(Sketcher.Constraint("DistanceX", -1, 1, 0, 2, 354.581269))
sketch12.addConstraint(Sketcher.Constraint("DistanceY", -1, 1, 0, 3, 33.011265))
pad12 = doc.addObject("PartDesign::Pad", "Pad011")
body12.addObject(pad12)
pad12.Profile = sketch12
pad12.Length = 12
body13 = doc.addObject("PartDesign::Body", "Body012")

# Sketch on XY plane
sketch13 = doc.addObject("Sketcher::SketchObject", "Sketch012")
body13.addObject(sketch13)
sketch13.AttachmentSupport = (doc.getObject("XY_Plane012"), [""])
sketch13.MapMode = "FlatFace"
sketch13.addGeometry(Part.ArcOfCircle(Part.Circle(V(389, 13, 0), V(0, 0, 1), 5), math.radians(-113), math.radians(68)), False)
sketch13.addGeometry(Part.LineSegment(V(391, 18, 0), V(382, 22, 0)), False)
sketch13.addGeometry(Part.LineSegment(V(382, 22, 0), V(369, 17, 0)), False)
sketch13.addGeometry(Part.LineSegment(V(369, 17, 0), V(387, 9, 0)), False)
sketch13.addConstraint(Sketcher.Constraint("Tangent", 0, 2, 1, 1))
sketch13.addConstraint(Sketcher.Constraint("Coincident", 1, 2, 2, 1))
sketch13.addConstraint(Sketcher.Constraint("Coincident", 2, 2, 3, 1))
sketch13.addConstraint(Sketcher.Constraint("Tangent", 3, 2, 0, 1))
sketch13.addConstraint(Sketcher.Constraint("Parallel", 1, 3))
sketch13.addConstraint(Sketcher.Constraint("Radius", 0, 5.0))
sketch13.addConstraint(Sketcher.Constraint("Distance", 1, 10.0))
sketch13.addConstraint(Sketcher.Constraint("Distance", 3, 20.0))
sketch13.addConstraint(Sketcher.Constraint("Angle", 1, Q("157.5 deg")))
sketch13.addConstraint(Sketcher.Constraint("DistanceX", -1, 1, 0, 2, 390.919102))
sketch13.addConstraint(Sketcher.Constraint("DistanceY", -1, 1, 1, 2, 21.922459))
pad13 = doc.addObject("PartDesign::Pad", "Pad012")
body13.addObject(pad13)
pad13.Profile = sketch13
pad13.Length = 12
body14 = doc.addObject("PartDesign::Body", "Body013")

# Sketch on XY plane
sketch14 = doc.addObject("Sketcher::SketchObject", "Sketch013")
body14.addObject(sketch14)
sketch14.AttachmentSupport = (doc.getObject("XY_Plane013"), [""])
sketch14.MapMode = "FlatFace"
sketch14.addGeometry(Part.LineSegment(V(0, 46, 0), V(0, 33, 0)), False)
sketch14.addGeometry(Part.LineSegment(V(0, 33, 0), V(26.8, 44.1, 0)), False)
sketch14.addGeometry(Part.ArcOfCircle(Part.Circle(V(31.4, 33, 0), V(0, 0, 1), 12), math.radians(-85), math.radians(112)), False)
sketch14.addGeometry(Part.LineSegment(V(32.5, 21.1, 0), V(34.4, 20.3, 0)), False)
sketch14.addGeometry(Part.LineSegment(V(34.4, 20.3, 0), V(91.8, 44.1, 0)), False)
sketch14.addGeometry(Part.ArcOfCircle(Part.Circle(V(96.4, 33, 0), V(0, 0, 1), 12), math.radians(-85), math.radians(112)), False)
sketch14.addGeometry(Part.LineSegment(V(97.5, 21.1, 0), V(99.4, 20.3, 0)), False)
sketch14.addGeometry(Part.LineSegment(V(99.4, 20.3, 0), V(156.8, 44.1, 0)), False)
sketch14.addGeometry(Part.ArcOfCircle(Part.Circle(V(161.4, 33, 0), V(0, 0, 1), 12), math.radians(-85), math.radians(113)), False)
sketch14.addGeometry(Part.LineSegment(V(162.6, 21.1, 0), V(164.4, 20.3, 0)), False)
sketch14.addGeometry(Part.LineSegment(V(164.4, 20.3, 0), V(221.9, 44.1, 0)), False)
sketch14.addGeometry(Part.ArcOfCircle(Part.Circle(V(226.5, 33, 0), V(0, 0, 1), 12), math.radians(-85), math.radians(113)), False)
sketch14.addGeometry(Part.LineSegment(V(227.6, 21.1, 0), V(229.4, 20.3, 0)), False)
sketch14.addGeometry(Part.LineSegment(V(229.4, 20.3, 0), V(286.9, 44.1, 0)), False)
sketch14.addGeometry(Part.ArcOfCircle(Part.Circle(V(291.5, 33, 0), V(0, 0, 1), 12), math.radians(-85), math.radians(113)), False)
sketch14.addGeometry(Part.LineSegment(V(292.6, 21.1, 0), V(294.4, 20.3, 0)), False)
sketch14.addGeometry(Part.LineSegment(V(294.4, 20.3, 0), V(351.9, 44.1, 0)), False)
sketch14.addGeometry(Part.ArcOfCircle(Part.Circle(V(356.5, 33, 0), V(0, 0, 1), 12), math.radians(-85), math.radians(112)), False)
sketch14.addGeometry(Part.LineSegment(V(357.6, 21.1, 0), V(359.5, 20.3, 0)), False)
sketch14.addGeometry(Part.LineSegment(V(359.5, 20.3, 0), V(403, 38.3, 0)), False)
sketch14.addGeometry(Part.LineSegment(V(403, 38.3, 0), V(403, 46, 0)), False)
sketch14.addGeometry(Part.LineSegment(V(403, 46, 0), V(0, 46, 0)), False)
sketch14.addConstraint(Sketcher.Constraint("Coincident", 0, 2, 1, 1))
sketch14.addConstraint(Sketcher.Constraint("Tangent", 1, 2, 2, 2))
sketch14.addConstraint(Sketcher.Constraint("Coincident", 2, 1, 3, 1))
sketch14.addConstraint(Sketcher.Constraint("Coincident", 3, 2, 4, 1))
sketch14.addConstraint(Sketcher.Constraint("Tangent", 4, 2, 5, 2))
sketch14.addConstraint(Sketcher.Constraint("Coincident", 5, 1, 6, 1))
sketch14.addConstraint(Sketcher.Constraint("Coincident", 6, 2, 7, 1))
sketch14.addConstraint(Sketcher.Constraint("Tangent", 7, 2, 8, 2))
sketch14.addConstraint(Sketcher.Constraint("Coincident", 8, 1, 9, 1))
sketch14.addConstraint(Sketcher.Constraint("Coincident", 9, 2, 10, 1))
sketch14.addConstraint(Sketcher.Constraint("Tangent", 10, 2, 11, 2))
sketch14.addConstraint(Sketcher.Constraint("Coincident", 11, 1, 12, 1))
sketch14.addConstraint(Sketcher.Constraint("Coincident", 12, 2, 13, 1))
sketch14.addConstraint(Sketcher.Constraint("Tangent", 13, 2, 14, 2))
sketch14.addConstraint(Sketcher.Constraint("Coincident", 14, 1, 15, 1))
sketch14.addConstraint(Sketcher.Constraint("Coincident", 15, 2, 16, 1))
sketch14.addConstraint(Sketcher.Constraint("Tangent", 16, 2, 17, 2))
sketch14.addConstraint(Sketcher.Constraint("Coincident", 17, 1, 18, 1))
sketch14.addConstraint(Sketcher.Constraint("Coincident", 18, 2, 19, 1))
sketch14.addConstraint(Sketcher.Constraint("Coincident", 19, 2, 20, 1))
sketch14.addConstraint(Sketcher.Constraint("Coincident", 20, 2, 21, 1))
sketch14.addConstraint(Sketcher.Constraint("Coincident", 21, 2, 0, 1))
sketch14.addConstraint(Sketcher.Constraint("Vertical", 0))
sketch14.addConstraint(Sketcher.Constraint("Vertical", 20))
sketch14.addConstraint(Sketcher.Constraint("Horizontal", 21))
sketch14.addConstraint(Sketcher.Constraint("Equal", 2, 5))
sketch14.addConstraint(Sketcher.Constraint("Equal", 5, 8))
sketch14.addConstraint(Sketcher.Constraint("Equal", 8, 11))
sketch14.addConstraint(Sketcher.Constraint("Equal", 11, 14))
sketch14.addConstraint(Sketcher.Constraint("Equal", 14, 17))
sketch14.addConstraint(Sketcher.Constraint("PointOnObject", 0, 2, -2))
sketch14.addConstraint(Sketcher.Constraint("Parallel", 1, 4))
sketch14.addConstraint(Sketcher.Constraint("Parallel", 3, 6))
sketch14.addConstraint(Sketcher.Constraint("Parallel", 4, 7))
sketch14.addConstraint(Sketcher.Constraint("Parallel", 6, 9))
sketch14.addConstraint(Sketcher.Constraint("Parallel", 7, 10))
sketch14.addConstraint(Sketcher.Constraint("Parallel", 9, 12))
sketch14.addConstraint(Sketcher.Constraint("Parallel", 10, 13))
sketch14.addConstraint(Sketcher.Constraint("Parallel", 12, 15))
sketch14.addConstraint(Sketcher.Constraint("Parallel", 13, 16))
sketch14.addConstraint(Sketcher.Constraint("Parallel", 15, 18))
sketch14.addConstraint(Sketcher.Constraint("Parallel", 16, 19))
sketch14.addConstraint(Sketcher.Constraint("Horizontal", 2, 3, 5, 3))
sketch14.addConstraint(Sketcher.Constraint("Horizontal", 5, 3, 8, 3))
sketch14.addConstraint(Sketcher.Constraint("Horizontal", 8, 3, 11, 3))
sketch14.addConstraint(Sketcher.Constraint("Horizontal", 11, 3, 14, 3))
sketch14.addConstraint(Sketcher.Constraint("Horizontal", 14, 3, 17, 3))
sketch14.addConstraint(Sketcher.Constraint("Horizontal", 2, 1, 5, 1))
sketch14.addConstraint(Sketcher.Constraint("Horizontal", 3, 2, 6, 2))
sketch14.addConstraint(Sketcher.Constraint("Horizontal", 5, 1, 8, 1))
sketch14.addConstraint(Sketcher.Constraint("Horizontal", 6, 2, 9, 2))
sketch14.addConstraint(Sketcher.Constraint("Horizontal", 8, 1, 11, 1))
sketch14.addConstraint(Sketcher.Constraint("Horizontal", 9, 2, 12, 2))
sketch14.addConstraint(Sketcher.Constraint("Horizontal", 11, 1, 14, 1))
sketch14.addConstraint(Sketcher.Constraint("Horizontal", 12, 2, 15, 2))
sketch14.addConstraint(Sketcher.Constraint("Horizontal", 14, 1, 17, 1))
sketch14.addConstraint(Sketcher.Constraint("Horizontal", 15, 2, 18, 2))
sketch14.addConstraint(Sketcher.Constraint("Radius", 2, 12.0))
sketch14.addConstraint(Sketcher.Constraint("DistanceX", 21, 2, 21, 1, 403.0))
sketch14.addConstraint(Sketcher.Constraint("DistanceY", 0, 2, 0, 1, 13.0))
sketch14.addConstraint(Sketcher.Constraint("Distance", 1, 29.0))
sketch14.addConstraint(Sketcher.Constraint("Distance", 3, 2.0))
sketch14.addConstraint(Sketcher.Constraint("DistanceY", -1, 1, 0, 2, 33.0))
sketch14.addConstraint(Sketcher.Constraint("Angle", 1, Q("22.5 deg")))
sketch14.addConstraint(Sketcher.Constraint("Angle", 3, Q("-22.5 deg")))
sketch14.addConstraint(Sketcher.Constraint("Distance", 19, 47.117901))
pad14 = doc.addObject("PartDesign::Pad", "Pad013")
body14.addObject(pad14)
pad14.Profile = sketch14
pad14.Length = 12
body.AllowCompound = True
doc.recompute()

boolean = doc.addObject("PartDesign::Boolean", "Boolean")
body.addObject(boolean)
boolean.Type = "Fuse"
boolean.addObjects([body2])
doc.recompute()

boolean2 = doc.addObject("PartDesign::Boolean", "Boolean001")
body.addObject(boolean2)
boolean2.Type = "Fuse"
boolean2.addObjects([body3])
doc.recompute()

boolean3 = doc.addObject("PartDesign::Boolean", "Boolean002")
body.addObject(boolean3)
boolean3.Type = "Fuse"
boolean3.addObjects([body4])
doc.recompute()

boolean4 = doc.addObject("PartDesign::Boolean", "Boolean003")
body.addObject(boolean4)
boolean4.Type = "Fuse"
boolean4.addObjects([body5])
doc.recompute()

boolean5 = doc.addObject("PartDesign::Boolean", "Boolean004")
body.addObject(boolean5)
boolean5.Type = "Fuse"
boolean5.addObjects([body6])
doc.recompute()

boolean6 = doc.addObject("PartDesign::Boolean", "Boolean005")
body.addObject(boolean6)
boolean6.Type = "Fuse"
boolean6.addObjects([body7])
doc.recompute()

boolean7 = doc.addObject("PartDesign::Boolean", "Boolean006")
body.addObject(boolean7)
boolean7.Type = "Fuse"
boolean7.addObjects([body8])
doc.recompute()

boolean8 = doc.addObject("PartDesign::Boolean", "Boolean007")
body.addObject(boolean8)
boolean8.Type = "Fuse"
boolean8.addObjects([body9])
doc.recompute()

boolean9 = doc.addObject("PartDesign::Boolean", "Boolean008")
body.addObject(boolean9)
boolean9.Type = "Fuse"
boolean9.addObjects([body10])
doc.recompute()

boolean10 = doc.addObject("PartDesign::Boolean", "Boolean009")
body.addObject(boolean10)
boolean10.Type = "Fuse"
boolean10.addObjects([body11])
doc.recompute()

boolean11 = doc.addObject("PartDesign::Boolean", "Boolean010")
body.addObject(boolean11)
boolean11.Type = "Fuse"
boolean11.addObjects([body12])
doc.recompute()

boolean12 = doc.addObject("PartDesign::Boolean", "Boolean011")
body.addObject(boolean12)
boolean12.Type = "Fuse"
boolean12.addObjects([body13])
doc.recompute()

boolean13 = doc.addObject("PartDesign::Boolean", "Boolean012")
body.addObject(boolean13)
boolean13.Type = "Fuse"
boolean13.addObjects([body14])

# Sketch on XY plane
sketch15 = doc.addObject("Sketcher::SketchObject", "Sketch014")
body.addObject(sketch15)
sketch15.AttachmentSupport = (doc.XY_Plane, [""])
sketch15.MapMode = "FlatFace"
add_polygon(sketch15, [(0, 46), (0, 0), (403, 0), (403, 46)])  # lines 0-3
sketch15.addConstraint(Sketcher.Constraint("Vertical", 0))
sketch15.addConstraint(Sketcher.Constraint("Horizontal", 1))
sketch15.addConstraint(Sketcher.Constraint("Vertical", 2))
sketch15.addConstraint(Sketcher.Constraint("Horizontal", 3))
sketch15.addConstraint(Sketcher.Constraint("Coincident", 0, 2, -1, 1))
sketch15.addConstraint(Sketcher.Constraint("DistanceX", 1, 1, 1, 2, 403.0))
sketch15.addConstraint(Sketcher.Constraint("DistanceY", 0, 2, 0, 1, 46.0))
pad15 = doc.addObject("PartDesign::Pad", "Pad014")
body.addObject(pad15)
pad15.Profile = sketch15
pad15.Length = 1.5
pad15.Reversed = True

# Sketch on XY plane
sketch16 = doc.addObject("Sketcher::SketchObject", "Sketch015")
body.addObject(sketch16)
sketch16.AttachmentSupport = (doc.XY_Plane, [""])
sketch16.MapMode = "FlatFace"
sketch16.AttachmentOffset = App.Placement(V(0, 0, 12), App.Rotation())
add_polygon(sketch16, [(0, 46), (0, 0), (403, 0), (403, 46)])  # lines 0-3
sketch16.addConstraint(Sketcher.Constraint("Vertical", 0))
sketch16.addConstraint(Sketcher.Constraint("Horizontal", 1))
sketch16.addConstraint(Sketcher.Constraint("Vertical", 2))
sketch16.addConstraint(Sketcher.Constraint("Horizontal", 3))
sketch16.addConstraint(Sketcher.Constraint("Coincident", 0, 2, -1, 1))
sketch16.addConstraint(Sketcher.Constraint("DistanceX", 1, 1, 1, 2, 403.0))
sketch16.addConstraint(Sketcher.Constraint("DistanceY", 0, 2, 0, 1, 46.0))
pad16 = doc.addObject("PartDesign::Pad", "Pad015")
body.addObject(pad16)
pad16.Profile = sketch16
pad16.Length = 1.5

# Sketch on YZ plane
sketch17 = doc.addObject("Sketcher::SketchObject", "Sketch016")
body.addObject(sketch17)
sketch17.AttachmentSupport = (doc.YZ_Plane, [""])
sketch17.MapMode = "FlatFace"
sketch17.addGeometry(Part.Circle(V(29, 6, 0), V(0, 0, 1), 8), False)
sketch17.addConstraint(Sketcher.Constraint("Diameter", 0, 15.0))
sketch17.addConstraint(Sketcher.Constraint("DistanceY", -1, 1, 0, 3, 6.0))
sketch17.addConstraint(Sketcher.Constraint("DistanceX", -1, 1, 0, 3, 29.25))
pad17 = doc.addObject("PartDesign::Pad", "Pad016")
body.addObject(pad17)
pad17.Profile = sketch17
pad17.Type = "TwoLengths"
pad17.Length = 10
pad17.Length2 = 2
pad17.Reversed = True

# Sketch on YZ plane
sketch18 = doc.addObject("Sketcher::SketchObject", "Sketch017")
body.addObject(sketch18)
sketch18.AttachmentSupport = (doc.YZ_Plane, [""])
sketch18.MapMode = "FlatFace"
sketch18.AttachmentOffset = App.Placement(V(0, 0, -10), App.Rotation())
sketch18.addGeometry(Part.Circle(V(29, 6, 0), V(0, 0, 1), 6), False)
sketch18.addConstraint(Sketcher.Constraint("Diameter", 0, 11.0))
sketch18.addConstraint(Sketcher.Constraint("DistanceY", -1, 1, 0, 3, 6.0))
sketch18.addConstraint(Sketcher.Constraint("DistanceX", -1, 1, 0, 3, 29.25))
pocket1 = doc.addObject("PartDesign::Pocket", "Pocket")
body.addObject(pocket1)
pocket1.Profile = sketch18
pocket1.Length = 18
pocket1.Reversed = True

# Sketch on YZ plane
sketch19 = doc.addObject("Sketcher::SketchObject", "Sketch018")
body.addObject(sketch19)
sketch19.AttachmentSupport = (doc.YZ_Plane, [""])
sketch19.MapMode = "FlatFace"
sketch19.AttachmentOffset = App.Placement(V(0, 0, 403), App.Rotation())
sketch19.addGeometry(Part.Circle(V(34, 6, 0), V(0, 0, 1), 8), False)
sketch19.addGeometry(Part.Circle(V(34, 6, 0), V(0, 0, 1), 6), False)
sketch19.addConstraint(Sketcher.Constraint("Coincident", 1, 3, 0, 3))
sketch19.addConstraint(Sketcher.Constraint("Diameter", 0, 15.0))
sketch19.addConstraint(Sketcher.Constraint("Diameter", 1, 11.0))
sketch19.addConstraint(Sketcher.Constraint("DistanceY", -1, 1, 0, 3, 6.0))
sketch19.addConstraint(Sketcher.Constraint("DistanceX", -1, 1, 0, 3, 34.4))
pad18 = doc.addObject("PartDesign::Pad", "Pad017")
body.addObject(pad18)
pad18.Profile = sketch19
pad18.Type = "TwoLengths"
pad18.Length = 11
pad18.Length2 = 2

# Sketch on YZ plane
sketch20 = doc.addObject("Sketcher::SketchObject", "Sketch019")
body.addObject(sketch20)
sketch20.AttachmentSupport = (doc.YZ_Plane, [""])
sketch20.MapMode = "FlatFace"
sketch20.AttachmentOffset = App.Placement(V(0, 0, 403), App.Rotation())
sketch20.addGeometry(Part.Circle(V(34, 6, 0), V(0, 0, 1), 6), False)
sketch20.addConstraint(Sketcher.Constraint("Diameter", 0, 11.0))
sketch20.addConstraint(Sketcher.Constraint("DistanceY", -1, 1, 0, 3, 6.0))
sketch20.addConstraint(Sketcher.Constraint("DistanceX", -1, 1, 0, 3, 34.4))
pocket2 = doc.addObject("PartDesign::Pocket", "Pocket001")
body.addObject(pocket2)
pocket2.Profile = sketch20
pocket2.Length = 9

doc.recompute()
